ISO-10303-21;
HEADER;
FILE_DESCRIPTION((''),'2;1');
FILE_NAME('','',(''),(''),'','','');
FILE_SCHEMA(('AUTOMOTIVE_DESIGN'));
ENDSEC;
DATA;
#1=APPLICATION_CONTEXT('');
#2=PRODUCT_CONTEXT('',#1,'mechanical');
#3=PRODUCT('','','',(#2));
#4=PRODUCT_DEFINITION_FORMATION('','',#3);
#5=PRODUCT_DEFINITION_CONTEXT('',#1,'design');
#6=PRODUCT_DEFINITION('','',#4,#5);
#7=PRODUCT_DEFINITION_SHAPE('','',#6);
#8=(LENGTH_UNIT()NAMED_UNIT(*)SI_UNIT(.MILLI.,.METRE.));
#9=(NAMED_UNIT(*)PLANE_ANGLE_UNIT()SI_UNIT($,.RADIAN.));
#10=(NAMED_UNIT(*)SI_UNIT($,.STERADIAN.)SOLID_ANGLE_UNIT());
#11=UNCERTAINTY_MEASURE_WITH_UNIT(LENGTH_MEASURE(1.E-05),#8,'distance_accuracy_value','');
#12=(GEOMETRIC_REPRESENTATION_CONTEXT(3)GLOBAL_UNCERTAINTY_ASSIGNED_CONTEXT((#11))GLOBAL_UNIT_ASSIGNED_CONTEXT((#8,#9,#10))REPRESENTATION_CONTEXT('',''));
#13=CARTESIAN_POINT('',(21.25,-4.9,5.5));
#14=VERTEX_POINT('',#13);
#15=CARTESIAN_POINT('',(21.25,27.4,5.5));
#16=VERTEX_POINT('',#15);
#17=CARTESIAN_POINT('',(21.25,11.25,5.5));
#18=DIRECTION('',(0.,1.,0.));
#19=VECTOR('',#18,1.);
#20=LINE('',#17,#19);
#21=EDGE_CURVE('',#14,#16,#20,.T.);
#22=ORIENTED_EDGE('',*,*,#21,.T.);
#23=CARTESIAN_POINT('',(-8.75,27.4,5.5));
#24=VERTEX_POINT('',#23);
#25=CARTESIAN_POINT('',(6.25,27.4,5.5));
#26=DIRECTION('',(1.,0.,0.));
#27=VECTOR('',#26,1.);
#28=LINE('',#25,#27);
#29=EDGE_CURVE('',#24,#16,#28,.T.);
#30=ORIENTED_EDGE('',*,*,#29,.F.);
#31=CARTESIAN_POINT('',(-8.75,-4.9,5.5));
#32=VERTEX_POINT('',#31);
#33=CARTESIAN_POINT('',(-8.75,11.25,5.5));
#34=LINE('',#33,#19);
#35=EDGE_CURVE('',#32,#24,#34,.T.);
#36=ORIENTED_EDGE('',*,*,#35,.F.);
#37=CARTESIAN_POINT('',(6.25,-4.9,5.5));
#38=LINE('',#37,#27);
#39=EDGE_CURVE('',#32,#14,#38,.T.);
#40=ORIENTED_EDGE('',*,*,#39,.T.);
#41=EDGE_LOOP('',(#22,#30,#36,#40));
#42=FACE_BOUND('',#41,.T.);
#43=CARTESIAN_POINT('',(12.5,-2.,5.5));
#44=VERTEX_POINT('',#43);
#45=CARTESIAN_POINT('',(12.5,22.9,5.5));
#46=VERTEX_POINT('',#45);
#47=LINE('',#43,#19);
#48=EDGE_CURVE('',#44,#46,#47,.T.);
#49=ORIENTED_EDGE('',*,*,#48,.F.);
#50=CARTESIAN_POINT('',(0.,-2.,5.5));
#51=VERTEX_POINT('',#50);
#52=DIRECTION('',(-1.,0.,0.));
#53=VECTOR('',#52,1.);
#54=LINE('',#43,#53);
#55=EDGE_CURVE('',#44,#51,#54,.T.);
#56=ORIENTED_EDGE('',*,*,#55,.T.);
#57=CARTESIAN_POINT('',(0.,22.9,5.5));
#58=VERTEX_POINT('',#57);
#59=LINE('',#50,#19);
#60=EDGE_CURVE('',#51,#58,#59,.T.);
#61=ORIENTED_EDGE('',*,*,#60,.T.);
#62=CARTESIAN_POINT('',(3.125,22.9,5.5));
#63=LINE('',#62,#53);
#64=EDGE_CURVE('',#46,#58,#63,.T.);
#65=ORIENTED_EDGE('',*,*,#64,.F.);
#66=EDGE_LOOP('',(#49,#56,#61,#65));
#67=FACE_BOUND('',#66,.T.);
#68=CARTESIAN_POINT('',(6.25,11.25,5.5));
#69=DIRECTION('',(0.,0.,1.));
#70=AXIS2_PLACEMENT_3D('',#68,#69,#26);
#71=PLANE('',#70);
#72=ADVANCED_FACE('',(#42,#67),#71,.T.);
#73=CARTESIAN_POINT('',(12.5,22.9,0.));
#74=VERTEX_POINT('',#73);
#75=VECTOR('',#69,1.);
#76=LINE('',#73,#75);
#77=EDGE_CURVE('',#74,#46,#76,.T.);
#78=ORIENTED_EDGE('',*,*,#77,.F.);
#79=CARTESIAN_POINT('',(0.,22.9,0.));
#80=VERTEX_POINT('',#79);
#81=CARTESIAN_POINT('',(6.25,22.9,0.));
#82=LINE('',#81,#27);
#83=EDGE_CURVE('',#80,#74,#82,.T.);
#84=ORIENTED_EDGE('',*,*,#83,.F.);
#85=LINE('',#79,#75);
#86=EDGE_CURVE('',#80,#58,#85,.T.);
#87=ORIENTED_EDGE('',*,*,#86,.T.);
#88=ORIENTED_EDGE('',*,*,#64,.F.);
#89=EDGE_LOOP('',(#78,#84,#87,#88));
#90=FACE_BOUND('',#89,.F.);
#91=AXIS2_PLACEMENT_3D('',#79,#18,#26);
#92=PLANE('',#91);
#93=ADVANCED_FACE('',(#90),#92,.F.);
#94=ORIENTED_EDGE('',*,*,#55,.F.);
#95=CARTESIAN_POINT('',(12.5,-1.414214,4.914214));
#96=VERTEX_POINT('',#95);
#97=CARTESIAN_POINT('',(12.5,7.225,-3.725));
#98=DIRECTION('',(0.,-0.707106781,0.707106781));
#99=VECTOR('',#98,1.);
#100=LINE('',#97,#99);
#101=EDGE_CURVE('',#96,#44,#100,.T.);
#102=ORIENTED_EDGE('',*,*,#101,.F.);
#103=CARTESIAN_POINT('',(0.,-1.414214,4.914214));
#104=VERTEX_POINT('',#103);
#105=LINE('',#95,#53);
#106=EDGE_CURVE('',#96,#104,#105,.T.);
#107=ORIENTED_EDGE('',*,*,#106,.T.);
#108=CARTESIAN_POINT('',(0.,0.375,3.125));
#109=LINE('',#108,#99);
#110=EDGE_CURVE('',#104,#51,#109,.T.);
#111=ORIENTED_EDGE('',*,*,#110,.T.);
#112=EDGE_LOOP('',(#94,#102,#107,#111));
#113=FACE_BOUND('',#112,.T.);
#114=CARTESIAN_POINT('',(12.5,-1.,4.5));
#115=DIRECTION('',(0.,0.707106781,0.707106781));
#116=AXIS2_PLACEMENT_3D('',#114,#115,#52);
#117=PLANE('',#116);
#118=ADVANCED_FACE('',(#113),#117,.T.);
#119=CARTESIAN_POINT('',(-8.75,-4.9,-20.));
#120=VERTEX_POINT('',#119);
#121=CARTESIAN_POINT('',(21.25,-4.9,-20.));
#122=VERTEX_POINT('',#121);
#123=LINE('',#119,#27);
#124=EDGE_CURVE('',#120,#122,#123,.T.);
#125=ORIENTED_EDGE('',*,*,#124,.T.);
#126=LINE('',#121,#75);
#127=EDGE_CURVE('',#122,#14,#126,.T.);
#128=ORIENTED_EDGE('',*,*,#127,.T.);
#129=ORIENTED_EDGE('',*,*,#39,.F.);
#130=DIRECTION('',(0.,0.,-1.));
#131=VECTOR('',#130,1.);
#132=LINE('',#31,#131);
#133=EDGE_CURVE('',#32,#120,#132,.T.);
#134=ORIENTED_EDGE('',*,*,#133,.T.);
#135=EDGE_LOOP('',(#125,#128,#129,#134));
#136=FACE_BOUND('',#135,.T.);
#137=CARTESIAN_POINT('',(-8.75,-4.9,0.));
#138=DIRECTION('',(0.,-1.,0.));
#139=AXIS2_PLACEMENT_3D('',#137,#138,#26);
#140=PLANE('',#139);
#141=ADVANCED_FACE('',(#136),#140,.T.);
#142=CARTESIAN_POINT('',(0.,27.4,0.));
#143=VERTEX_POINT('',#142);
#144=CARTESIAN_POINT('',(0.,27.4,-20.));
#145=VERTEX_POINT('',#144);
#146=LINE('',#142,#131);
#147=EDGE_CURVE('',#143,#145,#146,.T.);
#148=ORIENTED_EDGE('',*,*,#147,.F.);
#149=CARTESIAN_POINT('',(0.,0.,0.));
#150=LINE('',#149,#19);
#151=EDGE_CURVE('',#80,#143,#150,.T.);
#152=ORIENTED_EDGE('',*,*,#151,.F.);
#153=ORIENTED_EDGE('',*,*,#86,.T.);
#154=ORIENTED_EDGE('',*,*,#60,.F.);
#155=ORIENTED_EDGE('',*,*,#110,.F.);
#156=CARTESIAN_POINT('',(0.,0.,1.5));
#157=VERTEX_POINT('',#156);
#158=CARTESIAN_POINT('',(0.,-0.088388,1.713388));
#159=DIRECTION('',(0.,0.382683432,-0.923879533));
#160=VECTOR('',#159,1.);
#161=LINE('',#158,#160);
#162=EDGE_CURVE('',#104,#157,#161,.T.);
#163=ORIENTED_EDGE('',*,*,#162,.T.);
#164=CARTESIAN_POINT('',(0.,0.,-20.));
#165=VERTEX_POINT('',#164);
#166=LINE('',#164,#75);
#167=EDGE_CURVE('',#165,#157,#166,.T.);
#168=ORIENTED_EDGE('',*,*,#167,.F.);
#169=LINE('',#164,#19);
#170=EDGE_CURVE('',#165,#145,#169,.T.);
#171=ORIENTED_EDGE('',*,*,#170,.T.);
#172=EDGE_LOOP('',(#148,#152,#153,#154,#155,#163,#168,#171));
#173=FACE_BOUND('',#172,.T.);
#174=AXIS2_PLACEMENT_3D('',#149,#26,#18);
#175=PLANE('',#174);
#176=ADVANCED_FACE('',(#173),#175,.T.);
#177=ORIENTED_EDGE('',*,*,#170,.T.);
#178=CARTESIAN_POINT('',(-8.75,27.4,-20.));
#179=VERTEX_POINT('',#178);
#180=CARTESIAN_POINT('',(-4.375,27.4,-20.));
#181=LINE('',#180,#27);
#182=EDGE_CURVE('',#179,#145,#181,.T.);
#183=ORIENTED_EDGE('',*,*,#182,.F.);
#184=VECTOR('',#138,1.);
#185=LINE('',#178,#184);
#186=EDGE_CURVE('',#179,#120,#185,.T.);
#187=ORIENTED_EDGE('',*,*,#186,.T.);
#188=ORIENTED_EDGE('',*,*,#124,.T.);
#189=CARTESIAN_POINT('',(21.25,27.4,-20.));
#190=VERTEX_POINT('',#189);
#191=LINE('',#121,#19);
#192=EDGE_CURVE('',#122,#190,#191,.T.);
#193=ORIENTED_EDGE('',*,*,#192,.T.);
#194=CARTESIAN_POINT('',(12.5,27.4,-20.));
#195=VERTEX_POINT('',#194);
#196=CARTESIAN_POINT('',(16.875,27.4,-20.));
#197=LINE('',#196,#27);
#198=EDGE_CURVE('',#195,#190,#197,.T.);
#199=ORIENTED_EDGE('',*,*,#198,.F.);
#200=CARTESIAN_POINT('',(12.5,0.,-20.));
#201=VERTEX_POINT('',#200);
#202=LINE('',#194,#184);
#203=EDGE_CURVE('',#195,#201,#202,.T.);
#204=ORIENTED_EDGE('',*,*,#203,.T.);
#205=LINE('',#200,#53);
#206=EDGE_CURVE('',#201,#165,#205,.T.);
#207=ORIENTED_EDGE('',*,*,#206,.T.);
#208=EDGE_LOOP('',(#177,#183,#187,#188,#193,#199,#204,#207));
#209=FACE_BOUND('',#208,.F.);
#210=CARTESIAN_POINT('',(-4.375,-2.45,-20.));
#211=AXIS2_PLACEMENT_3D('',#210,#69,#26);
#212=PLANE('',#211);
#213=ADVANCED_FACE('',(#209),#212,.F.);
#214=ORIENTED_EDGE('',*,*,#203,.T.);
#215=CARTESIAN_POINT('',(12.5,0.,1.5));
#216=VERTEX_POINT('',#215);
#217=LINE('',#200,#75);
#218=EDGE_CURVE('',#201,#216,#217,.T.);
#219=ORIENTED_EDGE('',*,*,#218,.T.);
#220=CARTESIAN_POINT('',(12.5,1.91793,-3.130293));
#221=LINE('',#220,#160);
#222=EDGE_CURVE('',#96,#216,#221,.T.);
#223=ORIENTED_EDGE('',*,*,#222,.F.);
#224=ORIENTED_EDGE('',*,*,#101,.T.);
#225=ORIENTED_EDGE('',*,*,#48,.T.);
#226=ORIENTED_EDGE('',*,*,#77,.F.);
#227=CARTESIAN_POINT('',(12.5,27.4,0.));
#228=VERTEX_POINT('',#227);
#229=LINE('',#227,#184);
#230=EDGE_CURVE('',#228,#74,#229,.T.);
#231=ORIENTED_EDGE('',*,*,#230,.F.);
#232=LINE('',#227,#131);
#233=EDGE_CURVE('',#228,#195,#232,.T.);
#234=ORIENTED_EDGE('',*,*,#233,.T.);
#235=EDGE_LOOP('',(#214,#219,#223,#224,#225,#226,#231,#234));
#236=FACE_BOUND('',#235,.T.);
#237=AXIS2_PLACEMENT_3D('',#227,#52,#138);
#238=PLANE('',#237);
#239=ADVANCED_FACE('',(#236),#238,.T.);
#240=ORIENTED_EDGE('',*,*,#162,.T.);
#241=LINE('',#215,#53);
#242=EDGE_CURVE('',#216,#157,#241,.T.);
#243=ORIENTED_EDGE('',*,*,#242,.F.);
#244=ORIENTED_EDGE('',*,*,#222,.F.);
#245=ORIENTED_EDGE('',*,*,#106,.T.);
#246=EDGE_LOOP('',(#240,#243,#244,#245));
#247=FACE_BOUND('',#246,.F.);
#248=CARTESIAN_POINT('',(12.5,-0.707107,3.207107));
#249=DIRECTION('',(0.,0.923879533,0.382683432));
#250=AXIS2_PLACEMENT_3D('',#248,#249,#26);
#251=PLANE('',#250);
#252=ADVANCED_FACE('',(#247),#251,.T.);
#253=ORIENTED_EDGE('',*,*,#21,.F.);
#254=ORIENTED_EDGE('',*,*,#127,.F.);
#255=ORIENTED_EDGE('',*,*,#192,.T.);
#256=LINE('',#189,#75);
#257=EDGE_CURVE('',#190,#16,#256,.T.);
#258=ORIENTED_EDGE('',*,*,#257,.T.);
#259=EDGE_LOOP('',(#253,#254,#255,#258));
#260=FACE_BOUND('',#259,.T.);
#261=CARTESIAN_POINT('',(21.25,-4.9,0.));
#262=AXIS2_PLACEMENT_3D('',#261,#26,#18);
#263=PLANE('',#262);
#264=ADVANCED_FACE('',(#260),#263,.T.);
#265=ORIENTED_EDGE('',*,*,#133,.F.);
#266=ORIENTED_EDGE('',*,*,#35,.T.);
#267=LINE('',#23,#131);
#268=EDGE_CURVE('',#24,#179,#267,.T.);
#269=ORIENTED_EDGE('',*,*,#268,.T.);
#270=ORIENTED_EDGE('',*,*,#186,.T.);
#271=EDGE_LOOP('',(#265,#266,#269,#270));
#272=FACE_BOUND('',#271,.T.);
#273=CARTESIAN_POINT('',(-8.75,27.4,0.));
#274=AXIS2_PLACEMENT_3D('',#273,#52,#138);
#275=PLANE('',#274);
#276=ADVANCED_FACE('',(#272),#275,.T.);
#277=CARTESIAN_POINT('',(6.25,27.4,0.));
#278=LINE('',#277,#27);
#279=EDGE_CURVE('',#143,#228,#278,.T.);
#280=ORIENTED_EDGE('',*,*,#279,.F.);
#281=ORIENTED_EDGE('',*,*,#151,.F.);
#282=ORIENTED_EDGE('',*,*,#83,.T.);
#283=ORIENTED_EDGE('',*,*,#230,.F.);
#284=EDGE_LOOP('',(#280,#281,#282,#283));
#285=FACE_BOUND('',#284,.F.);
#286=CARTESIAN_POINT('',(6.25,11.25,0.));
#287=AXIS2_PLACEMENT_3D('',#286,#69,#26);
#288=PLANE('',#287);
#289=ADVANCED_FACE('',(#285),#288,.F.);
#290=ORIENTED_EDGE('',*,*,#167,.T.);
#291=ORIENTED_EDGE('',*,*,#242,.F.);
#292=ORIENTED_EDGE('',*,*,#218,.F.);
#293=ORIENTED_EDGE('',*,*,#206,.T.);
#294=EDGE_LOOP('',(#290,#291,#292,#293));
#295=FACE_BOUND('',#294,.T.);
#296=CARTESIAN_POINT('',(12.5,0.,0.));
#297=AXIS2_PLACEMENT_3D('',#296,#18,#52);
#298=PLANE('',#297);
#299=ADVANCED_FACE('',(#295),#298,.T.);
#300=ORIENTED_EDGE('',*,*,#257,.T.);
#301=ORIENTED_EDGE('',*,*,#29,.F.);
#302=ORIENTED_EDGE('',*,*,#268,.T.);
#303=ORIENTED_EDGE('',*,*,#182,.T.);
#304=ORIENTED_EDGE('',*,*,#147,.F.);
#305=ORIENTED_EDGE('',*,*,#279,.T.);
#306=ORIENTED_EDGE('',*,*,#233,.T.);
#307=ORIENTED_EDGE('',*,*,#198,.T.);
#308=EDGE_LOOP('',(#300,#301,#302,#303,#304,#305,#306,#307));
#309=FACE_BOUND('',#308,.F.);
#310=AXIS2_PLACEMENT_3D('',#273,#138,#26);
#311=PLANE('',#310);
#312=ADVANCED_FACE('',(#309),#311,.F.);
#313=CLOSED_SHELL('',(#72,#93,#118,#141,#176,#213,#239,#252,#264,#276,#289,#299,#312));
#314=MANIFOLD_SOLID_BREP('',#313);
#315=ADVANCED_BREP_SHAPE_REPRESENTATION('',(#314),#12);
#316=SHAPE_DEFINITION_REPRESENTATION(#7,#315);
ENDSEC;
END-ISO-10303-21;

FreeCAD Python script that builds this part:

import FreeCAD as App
import Part
import Sketcher


def edges_at(feature, points):
    """Names of the edges that pass closest to the given points."""
    edges = feature.Shape.Edges
    near = lambda p: min(range(len(edges)), key=lambda i: edges[i].distToShape(Part.Vertex(*p))[0])
    return sorted({f"Edge{near(p) + 1}" for p in points})


def add_polygon(sketch, points):
    """Adds a closed chain of lines whose ends are joined by coincident constraints."""
    first, n = sketch.GeometryCount, len(points)
    for a, b in zip(points, points[1:] + points[:1]):
        sketch.addGeometry(Part.LineSegment(App.Vector(*a, 0), App.Vector(*b, 0)), False)
    for i in range(n):
        sketch.addConstraint(Sketcher.Constraint("Coincident", first + i, 2, first + (i + 1) % n, 1))

doc = App.newDocument("Part")
body = doc.addObject("PartDesign::Body", "Body")

# Sketch on XY plane
sketch1 = body.newObject("Sketcher::SketchObject", "Sketch")
sketch1.AttachmentSupport = (doc.getObject("XY_Plane"), [""])
sketch1.MapMode = "FlatFace"
add_polygon(sketch1, [(-8.75, 27.4), (-8.75, -4.9), (21.25, -4.9), (21.25, 27.4)])  # lines 0-3
sketch1.addConstraint([
    Sketcher.Constraint("Vertical", 0),
    Sketcher.Constraint("Horizontal", 1),
    Sketcher.Constraint("Vertical", 2),
    Sketcher.Constraint("Horizontal", 3),
    Sketcher.Constraint("DistanceX", 1, 1, 1, 2, 30.0),
    Sketcher.Constraint("DistanceY", 0, 2, 0, 1, 32.3),
    Sketcher.Constraint("DistanceY", 0, 2, -1, 1, 4.9),
    Sketcher.Constraint("DistanceX", 0, 2, -1, 1, 8.75),
])
pad1 = body.newObject("PartDesign::Pad", "Pad")
pad1.Profile = sketch1
pad1.Length = 5.5

# Sketch on XY plane
sketch2 = body.newObject("Sketcher::SketchObject", "Sketch001")
sketch2.AttachmentSupport = (doc.getObject("XY_Plane"), [""])
sketch2.MapMode = "FlatFace"
add_polygon(sketch2, [(0, 22.9), (0, 0), (12.5, 0), (12.5, 22.9)])  # lines 0-3
sketch2.addConstraint([
    Sketcher.Constraint("Vertical", 0),
    Sketcher.Constraint("Horizontal", 1),
    Sketcher.Constraint("Vertical", 2),
    Sketcher.Constraint("Horizontal", 3),
    Sketcher.Constraint("Coincident", 0, 2, -1, 1),
    Sketcher.Constraint("DistanceX", 1, 1, 1, 2, 12.5),
    Sketcher.Constraint("DistanceY", 0, 2, 0, 1, 22.9),
])
pocket1 = body.newObject("PartDesign::Pocket", "Pocket")
pocket1.Profile = sketch2
pocket1.Length = 7
pocket1.Reversed = True

# Sketch on XY plane
sketch3 = body.newObject("Sketcher::SketchObject", "Sketch002")
sketch3.AttachmentSupport = (doc.getObject("XY_Plane"), [""])
sketch3.MapMode = "FlatFace"
add_polygon(sketch3, [(-8.75, -4.9), (21.25, -4.9), (21.25, 27.4), (12.5, 27.4), (12.5, 0), (0, 0), (0, 27.4), (-8.75, 27.4)])  # lines 0-7
sketch3.addConstraint([
    Sketcher.Constraint("Horizontal", 0),
    Sketcher.Constraint("Vertical", 1),
    Sketcher.Constraint("Horizontal", 2),
    Sketcher.Constraint("Vertical", 3),
    Sketcher.Constraint("Horizontal", 4),
    Sketcher.Constraint("Vertical", 5),
    Sketcher.Constraint("Horizontal", 6),
    Sketcher.Constraint("Vertical", 7),
    Sketcher.Constraint("Coincident", 4, 2, -1, 1),
    Sketcher.Constraint("Horizontal", 2, 2, 5, 2),
    Sketcher.Constraint("Equal", 2, 6),
    Sketcher.Constraint("DistanceX", 0, 1, 0, 2, 30.0),
    Sketcher.Constraint("DistanceX", 4, 2, 4, 1, 12.5),
    Sketcher.Constraint("DistanceY", 1, 1, 1, 2, 32.3),
    Sketcher.Constraint("DistanceY", 3, 2, 3, 1, 27.4),
])
pad2 = body.newObject("PartDesign::Pad", "Pad001")
pad2.Profile = sketch3
pad2.Length = 20
pad2.Reversed = True
doc.recompute()

chamfer = body.newObject("PartDesign::Chamfer", "Chamfer")
chamfer.Base = (pad2, edges_at(pad2, [(6.25, 0, 5.5)]))
chamfer.Size = 2
doc.recompute()

chamfer2 = body.newObject("PartDesign::Chamfer", "Chamfer001")
chamfer2.Base = (chamfer, edges_at(chamfer, [(6.25, 0, 3.5)]))
chamfer2.Size = 2

doc.recompute()
